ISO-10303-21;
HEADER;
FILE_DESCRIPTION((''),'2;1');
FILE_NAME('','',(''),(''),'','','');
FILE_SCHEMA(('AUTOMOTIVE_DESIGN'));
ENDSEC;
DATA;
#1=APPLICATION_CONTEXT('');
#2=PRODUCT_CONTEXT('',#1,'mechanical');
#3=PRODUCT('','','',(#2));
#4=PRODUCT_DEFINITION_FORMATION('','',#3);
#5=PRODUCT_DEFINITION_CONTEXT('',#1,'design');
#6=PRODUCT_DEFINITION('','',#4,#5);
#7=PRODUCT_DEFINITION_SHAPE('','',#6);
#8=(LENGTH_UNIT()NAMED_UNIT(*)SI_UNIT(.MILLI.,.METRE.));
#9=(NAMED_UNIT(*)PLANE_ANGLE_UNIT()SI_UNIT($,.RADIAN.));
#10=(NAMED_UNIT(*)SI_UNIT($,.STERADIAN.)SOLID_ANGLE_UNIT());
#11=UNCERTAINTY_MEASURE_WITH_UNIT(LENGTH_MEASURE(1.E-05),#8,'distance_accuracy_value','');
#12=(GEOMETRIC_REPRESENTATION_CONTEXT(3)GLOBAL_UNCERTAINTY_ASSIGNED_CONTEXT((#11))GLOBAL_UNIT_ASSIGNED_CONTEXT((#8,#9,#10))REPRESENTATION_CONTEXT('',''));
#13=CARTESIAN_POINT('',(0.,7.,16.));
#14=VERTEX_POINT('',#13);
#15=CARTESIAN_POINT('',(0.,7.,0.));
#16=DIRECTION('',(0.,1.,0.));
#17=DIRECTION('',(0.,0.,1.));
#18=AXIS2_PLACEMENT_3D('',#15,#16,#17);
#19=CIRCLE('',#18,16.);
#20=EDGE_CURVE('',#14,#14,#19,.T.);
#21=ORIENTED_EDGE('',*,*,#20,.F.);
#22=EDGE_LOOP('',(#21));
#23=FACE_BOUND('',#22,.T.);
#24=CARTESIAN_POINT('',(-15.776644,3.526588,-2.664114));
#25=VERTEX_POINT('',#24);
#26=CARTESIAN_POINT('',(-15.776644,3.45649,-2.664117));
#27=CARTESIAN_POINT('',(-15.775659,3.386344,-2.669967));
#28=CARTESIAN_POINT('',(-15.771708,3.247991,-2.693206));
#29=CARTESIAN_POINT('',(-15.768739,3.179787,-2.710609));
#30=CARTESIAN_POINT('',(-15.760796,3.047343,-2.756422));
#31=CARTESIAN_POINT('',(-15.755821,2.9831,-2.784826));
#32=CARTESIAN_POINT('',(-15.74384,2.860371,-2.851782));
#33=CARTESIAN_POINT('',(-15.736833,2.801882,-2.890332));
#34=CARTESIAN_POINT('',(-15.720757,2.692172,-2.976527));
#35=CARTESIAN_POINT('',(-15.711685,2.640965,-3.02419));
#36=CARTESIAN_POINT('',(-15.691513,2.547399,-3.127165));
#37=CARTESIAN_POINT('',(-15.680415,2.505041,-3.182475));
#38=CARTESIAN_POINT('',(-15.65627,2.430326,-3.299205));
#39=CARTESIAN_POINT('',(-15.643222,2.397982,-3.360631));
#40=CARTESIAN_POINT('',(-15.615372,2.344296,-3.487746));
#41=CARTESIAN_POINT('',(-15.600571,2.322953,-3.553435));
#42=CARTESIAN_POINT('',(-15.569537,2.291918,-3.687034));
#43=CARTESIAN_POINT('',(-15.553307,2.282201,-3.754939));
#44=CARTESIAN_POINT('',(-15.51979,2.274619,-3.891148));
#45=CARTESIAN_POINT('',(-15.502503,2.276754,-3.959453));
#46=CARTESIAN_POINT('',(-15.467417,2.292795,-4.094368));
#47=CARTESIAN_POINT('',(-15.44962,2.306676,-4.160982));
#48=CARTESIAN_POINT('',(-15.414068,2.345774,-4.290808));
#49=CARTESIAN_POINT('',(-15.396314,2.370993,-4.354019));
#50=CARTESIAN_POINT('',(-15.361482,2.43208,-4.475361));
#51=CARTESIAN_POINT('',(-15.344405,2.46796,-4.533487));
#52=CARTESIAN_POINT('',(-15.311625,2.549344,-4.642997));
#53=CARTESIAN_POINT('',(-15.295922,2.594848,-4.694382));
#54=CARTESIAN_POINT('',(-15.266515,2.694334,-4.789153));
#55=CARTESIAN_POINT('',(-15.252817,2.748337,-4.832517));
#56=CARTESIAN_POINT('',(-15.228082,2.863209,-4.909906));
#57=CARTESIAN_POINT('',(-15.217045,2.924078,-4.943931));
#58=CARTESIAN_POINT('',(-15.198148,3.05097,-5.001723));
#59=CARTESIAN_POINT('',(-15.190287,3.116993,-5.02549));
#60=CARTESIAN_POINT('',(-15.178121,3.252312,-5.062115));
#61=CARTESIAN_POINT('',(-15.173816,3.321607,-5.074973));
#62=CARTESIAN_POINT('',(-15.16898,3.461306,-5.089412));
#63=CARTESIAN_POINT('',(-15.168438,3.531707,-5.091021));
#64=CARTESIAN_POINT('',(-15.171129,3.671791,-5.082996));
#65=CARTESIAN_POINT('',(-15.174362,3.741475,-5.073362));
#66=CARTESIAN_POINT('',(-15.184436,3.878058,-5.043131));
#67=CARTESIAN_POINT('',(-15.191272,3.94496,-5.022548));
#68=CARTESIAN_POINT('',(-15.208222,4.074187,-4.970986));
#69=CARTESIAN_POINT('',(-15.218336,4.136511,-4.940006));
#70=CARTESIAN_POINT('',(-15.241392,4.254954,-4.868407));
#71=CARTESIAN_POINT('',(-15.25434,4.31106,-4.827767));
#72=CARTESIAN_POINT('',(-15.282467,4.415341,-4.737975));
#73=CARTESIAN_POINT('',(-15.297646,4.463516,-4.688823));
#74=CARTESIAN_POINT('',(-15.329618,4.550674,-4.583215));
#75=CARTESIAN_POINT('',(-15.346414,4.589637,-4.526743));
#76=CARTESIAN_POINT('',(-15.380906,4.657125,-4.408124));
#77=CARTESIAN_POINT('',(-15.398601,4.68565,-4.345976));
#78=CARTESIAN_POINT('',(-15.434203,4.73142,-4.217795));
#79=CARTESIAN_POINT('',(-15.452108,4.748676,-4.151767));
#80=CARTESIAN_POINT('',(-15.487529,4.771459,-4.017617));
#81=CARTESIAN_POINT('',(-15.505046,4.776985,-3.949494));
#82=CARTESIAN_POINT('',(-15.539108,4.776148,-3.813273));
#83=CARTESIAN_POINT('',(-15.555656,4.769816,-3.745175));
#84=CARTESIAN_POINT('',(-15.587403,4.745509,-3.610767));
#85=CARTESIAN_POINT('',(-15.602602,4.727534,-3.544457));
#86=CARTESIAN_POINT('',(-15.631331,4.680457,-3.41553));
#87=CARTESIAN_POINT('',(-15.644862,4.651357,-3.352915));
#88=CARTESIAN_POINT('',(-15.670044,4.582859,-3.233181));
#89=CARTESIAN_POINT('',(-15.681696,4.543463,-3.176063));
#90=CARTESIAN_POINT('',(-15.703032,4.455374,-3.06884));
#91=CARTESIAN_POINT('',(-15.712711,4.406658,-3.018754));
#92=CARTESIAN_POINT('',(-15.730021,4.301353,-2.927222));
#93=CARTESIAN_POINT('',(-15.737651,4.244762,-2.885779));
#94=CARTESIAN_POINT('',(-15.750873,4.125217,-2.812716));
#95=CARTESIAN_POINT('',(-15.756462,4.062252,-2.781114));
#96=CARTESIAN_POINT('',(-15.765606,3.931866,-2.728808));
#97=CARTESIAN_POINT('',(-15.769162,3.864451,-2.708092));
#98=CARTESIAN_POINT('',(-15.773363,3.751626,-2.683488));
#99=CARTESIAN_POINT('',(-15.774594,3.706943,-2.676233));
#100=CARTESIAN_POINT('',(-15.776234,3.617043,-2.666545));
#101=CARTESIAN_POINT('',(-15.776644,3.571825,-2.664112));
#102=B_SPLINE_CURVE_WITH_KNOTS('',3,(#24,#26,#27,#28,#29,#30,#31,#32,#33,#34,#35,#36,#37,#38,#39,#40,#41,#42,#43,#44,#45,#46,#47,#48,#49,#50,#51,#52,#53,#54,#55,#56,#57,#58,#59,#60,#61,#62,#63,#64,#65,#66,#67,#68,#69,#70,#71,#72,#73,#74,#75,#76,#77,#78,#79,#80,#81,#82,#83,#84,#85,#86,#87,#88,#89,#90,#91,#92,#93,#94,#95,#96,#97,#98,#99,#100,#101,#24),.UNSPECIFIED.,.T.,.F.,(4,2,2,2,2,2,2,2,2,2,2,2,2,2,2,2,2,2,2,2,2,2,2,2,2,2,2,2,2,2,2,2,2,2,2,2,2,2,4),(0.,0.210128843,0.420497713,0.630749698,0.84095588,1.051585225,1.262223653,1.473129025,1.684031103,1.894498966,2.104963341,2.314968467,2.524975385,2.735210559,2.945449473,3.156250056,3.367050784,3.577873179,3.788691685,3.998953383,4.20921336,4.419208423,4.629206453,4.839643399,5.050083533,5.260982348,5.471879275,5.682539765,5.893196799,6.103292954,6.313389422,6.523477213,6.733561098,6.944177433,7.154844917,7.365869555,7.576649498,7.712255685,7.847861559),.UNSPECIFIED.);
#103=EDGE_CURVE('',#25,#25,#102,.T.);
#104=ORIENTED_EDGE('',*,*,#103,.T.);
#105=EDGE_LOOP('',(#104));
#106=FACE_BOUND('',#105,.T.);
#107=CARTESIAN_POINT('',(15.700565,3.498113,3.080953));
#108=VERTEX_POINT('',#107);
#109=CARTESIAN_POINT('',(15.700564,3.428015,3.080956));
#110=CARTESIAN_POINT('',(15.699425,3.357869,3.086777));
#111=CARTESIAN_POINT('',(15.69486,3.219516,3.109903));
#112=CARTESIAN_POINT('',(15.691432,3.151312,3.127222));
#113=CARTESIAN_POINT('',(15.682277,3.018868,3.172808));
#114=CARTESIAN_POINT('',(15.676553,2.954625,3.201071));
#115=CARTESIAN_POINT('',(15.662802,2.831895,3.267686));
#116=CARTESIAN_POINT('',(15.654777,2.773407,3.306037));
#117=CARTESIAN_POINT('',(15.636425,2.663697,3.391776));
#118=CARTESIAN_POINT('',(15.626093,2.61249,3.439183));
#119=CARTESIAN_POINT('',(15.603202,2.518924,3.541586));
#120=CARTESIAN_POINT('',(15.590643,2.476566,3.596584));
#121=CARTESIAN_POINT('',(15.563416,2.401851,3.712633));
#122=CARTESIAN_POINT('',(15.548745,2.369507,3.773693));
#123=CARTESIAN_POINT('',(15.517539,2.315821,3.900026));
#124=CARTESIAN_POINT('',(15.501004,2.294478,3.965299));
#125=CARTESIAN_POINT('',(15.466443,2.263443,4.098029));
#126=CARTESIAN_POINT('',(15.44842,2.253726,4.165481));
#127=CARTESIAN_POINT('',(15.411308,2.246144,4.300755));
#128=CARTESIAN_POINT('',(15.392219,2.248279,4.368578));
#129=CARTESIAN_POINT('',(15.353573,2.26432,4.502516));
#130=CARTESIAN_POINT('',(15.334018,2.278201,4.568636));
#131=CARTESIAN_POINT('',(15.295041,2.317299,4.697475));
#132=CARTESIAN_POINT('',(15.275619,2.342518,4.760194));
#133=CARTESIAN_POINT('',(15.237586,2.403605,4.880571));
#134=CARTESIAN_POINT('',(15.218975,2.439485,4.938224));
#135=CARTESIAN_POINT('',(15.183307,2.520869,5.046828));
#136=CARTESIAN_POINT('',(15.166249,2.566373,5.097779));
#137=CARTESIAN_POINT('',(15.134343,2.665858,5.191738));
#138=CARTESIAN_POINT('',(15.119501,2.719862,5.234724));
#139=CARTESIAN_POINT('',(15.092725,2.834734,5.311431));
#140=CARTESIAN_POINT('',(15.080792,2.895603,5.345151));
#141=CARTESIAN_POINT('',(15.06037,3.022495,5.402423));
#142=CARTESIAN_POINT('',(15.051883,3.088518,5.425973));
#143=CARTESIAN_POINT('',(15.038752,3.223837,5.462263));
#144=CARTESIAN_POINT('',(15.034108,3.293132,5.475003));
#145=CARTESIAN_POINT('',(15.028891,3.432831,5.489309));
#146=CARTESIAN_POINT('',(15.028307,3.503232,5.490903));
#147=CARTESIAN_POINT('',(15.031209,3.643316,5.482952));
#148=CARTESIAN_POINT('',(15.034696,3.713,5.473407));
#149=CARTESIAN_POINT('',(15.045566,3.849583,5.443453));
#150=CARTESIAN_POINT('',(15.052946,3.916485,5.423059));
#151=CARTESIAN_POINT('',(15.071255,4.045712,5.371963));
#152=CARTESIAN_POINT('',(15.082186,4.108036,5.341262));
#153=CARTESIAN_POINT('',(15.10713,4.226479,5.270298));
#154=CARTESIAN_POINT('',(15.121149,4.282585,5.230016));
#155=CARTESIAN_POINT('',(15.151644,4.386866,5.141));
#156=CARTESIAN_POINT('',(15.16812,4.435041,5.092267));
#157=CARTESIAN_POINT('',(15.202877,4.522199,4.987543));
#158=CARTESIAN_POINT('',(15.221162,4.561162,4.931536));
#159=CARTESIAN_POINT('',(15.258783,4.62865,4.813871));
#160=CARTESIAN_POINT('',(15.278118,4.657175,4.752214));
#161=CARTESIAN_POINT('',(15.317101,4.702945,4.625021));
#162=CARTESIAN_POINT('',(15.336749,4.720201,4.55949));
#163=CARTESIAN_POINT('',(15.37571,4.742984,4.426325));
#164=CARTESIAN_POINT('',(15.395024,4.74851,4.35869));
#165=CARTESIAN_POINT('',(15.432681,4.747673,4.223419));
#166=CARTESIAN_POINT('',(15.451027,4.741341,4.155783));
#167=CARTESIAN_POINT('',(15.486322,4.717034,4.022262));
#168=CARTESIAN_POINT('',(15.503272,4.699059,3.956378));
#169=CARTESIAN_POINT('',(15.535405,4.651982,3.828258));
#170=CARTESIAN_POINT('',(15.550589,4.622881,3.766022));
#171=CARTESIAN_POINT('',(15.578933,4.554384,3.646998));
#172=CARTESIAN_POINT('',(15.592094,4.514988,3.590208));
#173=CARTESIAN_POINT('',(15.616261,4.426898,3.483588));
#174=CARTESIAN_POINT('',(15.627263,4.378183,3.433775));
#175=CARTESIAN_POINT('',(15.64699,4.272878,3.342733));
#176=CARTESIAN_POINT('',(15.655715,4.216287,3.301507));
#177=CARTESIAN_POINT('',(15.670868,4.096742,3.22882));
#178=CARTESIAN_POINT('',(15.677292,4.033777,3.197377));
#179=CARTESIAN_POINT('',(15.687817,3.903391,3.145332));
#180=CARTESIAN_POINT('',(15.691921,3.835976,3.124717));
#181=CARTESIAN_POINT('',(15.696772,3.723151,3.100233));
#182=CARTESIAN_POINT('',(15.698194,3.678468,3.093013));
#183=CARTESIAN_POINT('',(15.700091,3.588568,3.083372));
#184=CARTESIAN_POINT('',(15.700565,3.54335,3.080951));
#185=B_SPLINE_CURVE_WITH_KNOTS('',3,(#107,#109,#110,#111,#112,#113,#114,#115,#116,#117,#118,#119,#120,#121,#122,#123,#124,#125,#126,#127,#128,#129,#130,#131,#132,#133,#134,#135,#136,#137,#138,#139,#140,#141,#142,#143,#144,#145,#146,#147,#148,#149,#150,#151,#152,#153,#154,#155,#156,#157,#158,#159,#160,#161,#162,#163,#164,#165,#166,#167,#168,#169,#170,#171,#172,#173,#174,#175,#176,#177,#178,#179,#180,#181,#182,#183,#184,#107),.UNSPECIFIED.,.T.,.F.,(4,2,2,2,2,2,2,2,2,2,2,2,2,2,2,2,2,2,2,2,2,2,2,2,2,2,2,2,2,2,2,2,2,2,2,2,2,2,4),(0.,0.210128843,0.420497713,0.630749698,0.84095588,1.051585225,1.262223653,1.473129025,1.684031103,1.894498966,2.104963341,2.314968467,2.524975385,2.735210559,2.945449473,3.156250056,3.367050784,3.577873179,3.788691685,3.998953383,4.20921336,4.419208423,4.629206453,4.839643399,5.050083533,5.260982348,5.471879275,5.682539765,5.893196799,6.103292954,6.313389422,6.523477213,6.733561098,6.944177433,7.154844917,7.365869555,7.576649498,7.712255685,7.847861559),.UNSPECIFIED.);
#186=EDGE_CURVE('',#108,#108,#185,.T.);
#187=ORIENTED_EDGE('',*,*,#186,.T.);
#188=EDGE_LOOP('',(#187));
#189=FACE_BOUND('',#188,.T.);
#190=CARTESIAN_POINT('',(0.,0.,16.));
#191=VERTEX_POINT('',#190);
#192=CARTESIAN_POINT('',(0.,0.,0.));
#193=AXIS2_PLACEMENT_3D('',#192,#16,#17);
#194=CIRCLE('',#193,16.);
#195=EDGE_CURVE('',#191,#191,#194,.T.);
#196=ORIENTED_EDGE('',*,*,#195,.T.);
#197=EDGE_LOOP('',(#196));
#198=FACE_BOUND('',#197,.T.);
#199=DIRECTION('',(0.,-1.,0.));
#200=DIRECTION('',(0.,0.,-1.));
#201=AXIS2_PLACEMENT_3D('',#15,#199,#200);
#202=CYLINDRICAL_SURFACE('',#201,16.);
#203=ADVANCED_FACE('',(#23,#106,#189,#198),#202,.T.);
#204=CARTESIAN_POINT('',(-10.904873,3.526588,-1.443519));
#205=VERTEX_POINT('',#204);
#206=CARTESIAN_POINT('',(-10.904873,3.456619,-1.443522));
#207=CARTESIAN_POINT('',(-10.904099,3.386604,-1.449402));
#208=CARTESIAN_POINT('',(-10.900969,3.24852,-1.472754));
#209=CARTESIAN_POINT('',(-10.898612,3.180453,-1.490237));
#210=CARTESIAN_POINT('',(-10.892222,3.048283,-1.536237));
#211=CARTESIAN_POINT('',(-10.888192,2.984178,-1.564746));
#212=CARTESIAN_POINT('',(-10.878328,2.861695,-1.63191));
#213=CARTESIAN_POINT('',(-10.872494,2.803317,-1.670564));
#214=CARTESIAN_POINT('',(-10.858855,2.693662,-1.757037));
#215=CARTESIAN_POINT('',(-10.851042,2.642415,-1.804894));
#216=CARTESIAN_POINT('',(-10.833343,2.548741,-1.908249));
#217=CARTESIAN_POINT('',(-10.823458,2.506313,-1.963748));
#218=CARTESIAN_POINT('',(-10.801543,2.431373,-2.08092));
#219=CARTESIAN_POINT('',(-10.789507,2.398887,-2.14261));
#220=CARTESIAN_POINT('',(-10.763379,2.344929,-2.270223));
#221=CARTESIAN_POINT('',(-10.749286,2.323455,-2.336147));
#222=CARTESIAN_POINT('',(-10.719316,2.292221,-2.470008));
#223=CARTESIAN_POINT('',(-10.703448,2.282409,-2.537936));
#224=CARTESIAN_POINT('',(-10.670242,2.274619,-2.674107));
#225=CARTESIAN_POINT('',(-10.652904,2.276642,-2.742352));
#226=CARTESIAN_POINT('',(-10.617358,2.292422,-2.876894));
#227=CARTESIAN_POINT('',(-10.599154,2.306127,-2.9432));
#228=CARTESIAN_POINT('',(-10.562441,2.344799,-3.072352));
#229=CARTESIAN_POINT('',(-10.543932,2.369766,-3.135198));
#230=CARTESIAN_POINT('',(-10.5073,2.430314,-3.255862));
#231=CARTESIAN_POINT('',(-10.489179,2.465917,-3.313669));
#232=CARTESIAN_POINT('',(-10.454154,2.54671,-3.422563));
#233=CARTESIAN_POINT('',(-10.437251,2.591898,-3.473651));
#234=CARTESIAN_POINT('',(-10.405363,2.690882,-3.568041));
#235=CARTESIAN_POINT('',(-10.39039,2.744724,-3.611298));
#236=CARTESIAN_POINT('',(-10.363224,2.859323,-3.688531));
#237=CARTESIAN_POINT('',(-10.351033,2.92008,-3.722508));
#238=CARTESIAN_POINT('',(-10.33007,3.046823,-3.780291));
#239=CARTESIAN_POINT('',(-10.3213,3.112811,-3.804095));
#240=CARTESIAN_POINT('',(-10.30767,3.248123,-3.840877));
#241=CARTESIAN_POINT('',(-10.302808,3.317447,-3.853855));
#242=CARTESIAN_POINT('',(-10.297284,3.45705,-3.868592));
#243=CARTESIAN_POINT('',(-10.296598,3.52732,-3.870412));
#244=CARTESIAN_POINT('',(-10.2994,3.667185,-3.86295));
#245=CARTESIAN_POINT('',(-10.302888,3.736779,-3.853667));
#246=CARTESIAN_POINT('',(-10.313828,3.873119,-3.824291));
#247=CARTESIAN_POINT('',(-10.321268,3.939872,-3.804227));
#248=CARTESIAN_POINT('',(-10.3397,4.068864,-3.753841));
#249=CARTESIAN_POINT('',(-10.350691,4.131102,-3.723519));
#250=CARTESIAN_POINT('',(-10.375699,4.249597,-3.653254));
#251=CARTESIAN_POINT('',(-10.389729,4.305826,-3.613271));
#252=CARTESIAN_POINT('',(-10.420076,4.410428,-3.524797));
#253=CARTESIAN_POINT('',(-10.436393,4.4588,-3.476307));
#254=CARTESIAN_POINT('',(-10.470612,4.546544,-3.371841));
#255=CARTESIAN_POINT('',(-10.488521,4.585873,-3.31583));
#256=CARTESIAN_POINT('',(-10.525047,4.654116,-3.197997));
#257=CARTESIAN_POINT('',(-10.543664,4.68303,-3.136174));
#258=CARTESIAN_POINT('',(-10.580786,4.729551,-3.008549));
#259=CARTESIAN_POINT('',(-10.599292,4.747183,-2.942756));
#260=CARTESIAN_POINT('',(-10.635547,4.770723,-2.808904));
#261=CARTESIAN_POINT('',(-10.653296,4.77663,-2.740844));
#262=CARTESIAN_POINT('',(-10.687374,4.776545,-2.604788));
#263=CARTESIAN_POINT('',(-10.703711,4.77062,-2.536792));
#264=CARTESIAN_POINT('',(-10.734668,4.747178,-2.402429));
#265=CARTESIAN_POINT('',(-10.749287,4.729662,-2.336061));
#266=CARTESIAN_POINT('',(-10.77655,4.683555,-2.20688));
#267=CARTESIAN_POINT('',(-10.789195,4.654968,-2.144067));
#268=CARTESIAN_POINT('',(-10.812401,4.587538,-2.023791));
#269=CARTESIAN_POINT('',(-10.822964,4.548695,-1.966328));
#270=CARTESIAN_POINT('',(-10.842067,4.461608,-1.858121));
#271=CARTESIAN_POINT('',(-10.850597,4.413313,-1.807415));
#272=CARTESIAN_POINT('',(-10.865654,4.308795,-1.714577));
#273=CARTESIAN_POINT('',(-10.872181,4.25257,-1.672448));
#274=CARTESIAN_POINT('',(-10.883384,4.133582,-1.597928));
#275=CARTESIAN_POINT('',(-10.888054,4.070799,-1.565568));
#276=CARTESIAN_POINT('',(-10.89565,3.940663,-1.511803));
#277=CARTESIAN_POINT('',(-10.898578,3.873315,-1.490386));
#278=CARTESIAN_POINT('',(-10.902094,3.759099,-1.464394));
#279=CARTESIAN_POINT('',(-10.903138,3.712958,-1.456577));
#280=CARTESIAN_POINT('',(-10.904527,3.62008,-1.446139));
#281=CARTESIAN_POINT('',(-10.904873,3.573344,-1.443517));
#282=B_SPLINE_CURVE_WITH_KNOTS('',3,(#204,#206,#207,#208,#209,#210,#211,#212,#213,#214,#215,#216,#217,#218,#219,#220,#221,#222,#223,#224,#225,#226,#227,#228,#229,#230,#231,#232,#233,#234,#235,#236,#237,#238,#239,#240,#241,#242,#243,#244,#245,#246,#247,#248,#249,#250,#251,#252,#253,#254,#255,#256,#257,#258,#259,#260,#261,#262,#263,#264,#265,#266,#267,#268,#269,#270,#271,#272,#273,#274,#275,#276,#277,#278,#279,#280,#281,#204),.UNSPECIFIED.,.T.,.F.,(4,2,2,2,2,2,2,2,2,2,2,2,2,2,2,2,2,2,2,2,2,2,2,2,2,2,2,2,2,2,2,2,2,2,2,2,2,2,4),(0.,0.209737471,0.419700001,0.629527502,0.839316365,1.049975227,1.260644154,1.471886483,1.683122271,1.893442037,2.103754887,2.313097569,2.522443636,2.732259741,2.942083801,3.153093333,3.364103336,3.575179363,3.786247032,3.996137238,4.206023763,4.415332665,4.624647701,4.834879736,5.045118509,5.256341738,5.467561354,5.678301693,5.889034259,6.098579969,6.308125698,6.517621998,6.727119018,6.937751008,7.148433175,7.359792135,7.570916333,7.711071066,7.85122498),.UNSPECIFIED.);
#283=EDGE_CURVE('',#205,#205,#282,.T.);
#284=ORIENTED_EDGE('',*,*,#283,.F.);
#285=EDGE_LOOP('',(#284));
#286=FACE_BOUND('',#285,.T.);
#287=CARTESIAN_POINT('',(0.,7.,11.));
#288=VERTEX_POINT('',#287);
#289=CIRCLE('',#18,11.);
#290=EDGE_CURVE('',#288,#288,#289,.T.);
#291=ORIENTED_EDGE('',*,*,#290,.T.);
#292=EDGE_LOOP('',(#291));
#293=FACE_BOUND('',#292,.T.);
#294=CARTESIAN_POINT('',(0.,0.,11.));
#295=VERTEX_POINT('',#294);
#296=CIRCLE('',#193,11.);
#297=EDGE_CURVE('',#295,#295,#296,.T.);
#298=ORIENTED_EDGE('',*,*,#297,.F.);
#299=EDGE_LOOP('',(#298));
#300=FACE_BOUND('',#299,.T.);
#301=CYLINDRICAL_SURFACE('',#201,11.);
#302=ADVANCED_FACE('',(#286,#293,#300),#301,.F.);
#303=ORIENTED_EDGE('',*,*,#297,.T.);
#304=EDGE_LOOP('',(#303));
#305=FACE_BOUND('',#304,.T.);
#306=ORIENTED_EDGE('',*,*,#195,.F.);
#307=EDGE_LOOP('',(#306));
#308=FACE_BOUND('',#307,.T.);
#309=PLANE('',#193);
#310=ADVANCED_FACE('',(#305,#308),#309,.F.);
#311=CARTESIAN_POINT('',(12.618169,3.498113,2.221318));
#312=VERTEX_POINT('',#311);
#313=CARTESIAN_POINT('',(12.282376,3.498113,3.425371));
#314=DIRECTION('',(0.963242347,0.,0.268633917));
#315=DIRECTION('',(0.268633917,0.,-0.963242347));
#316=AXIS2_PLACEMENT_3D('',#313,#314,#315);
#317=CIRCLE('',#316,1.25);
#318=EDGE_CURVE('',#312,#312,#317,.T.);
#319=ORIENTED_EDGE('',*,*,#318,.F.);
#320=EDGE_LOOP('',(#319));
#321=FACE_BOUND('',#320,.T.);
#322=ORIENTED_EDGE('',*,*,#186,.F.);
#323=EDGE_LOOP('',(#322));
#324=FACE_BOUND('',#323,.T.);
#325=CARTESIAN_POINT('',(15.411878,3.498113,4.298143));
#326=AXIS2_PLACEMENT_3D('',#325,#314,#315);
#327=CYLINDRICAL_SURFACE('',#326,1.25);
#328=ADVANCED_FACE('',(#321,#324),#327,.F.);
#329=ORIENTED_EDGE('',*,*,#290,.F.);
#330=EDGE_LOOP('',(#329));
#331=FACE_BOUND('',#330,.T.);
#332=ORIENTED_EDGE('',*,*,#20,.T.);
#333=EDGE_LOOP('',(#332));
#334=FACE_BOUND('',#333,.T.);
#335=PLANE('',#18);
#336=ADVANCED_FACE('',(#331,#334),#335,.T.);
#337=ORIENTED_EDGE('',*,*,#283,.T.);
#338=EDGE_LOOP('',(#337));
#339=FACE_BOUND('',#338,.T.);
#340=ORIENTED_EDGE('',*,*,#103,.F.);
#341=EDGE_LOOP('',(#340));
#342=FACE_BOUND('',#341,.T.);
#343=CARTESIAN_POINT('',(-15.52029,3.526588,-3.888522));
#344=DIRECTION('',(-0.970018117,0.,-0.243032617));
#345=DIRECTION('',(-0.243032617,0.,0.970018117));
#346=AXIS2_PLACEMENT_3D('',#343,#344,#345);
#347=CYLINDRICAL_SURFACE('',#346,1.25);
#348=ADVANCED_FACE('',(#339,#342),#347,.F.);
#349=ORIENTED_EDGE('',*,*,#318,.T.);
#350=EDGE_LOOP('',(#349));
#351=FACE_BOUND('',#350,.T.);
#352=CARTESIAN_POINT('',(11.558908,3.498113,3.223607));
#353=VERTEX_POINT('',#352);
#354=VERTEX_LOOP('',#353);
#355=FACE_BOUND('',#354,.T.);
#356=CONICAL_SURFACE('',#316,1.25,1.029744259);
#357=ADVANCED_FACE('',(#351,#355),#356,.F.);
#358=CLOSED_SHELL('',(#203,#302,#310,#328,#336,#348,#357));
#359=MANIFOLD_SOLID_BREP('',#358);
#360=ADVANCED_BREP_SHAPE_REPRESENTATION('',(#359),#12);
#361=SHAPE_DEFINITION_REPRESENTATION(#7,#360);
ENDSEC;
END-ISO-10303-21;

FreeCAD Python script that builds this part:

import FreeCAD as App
import Part
import Sketcher

V = App.Vector
Q = App.Units.Quantity

doc = App.newDocument("Part")
params = doc.addObject("Spreadsheet::Sheet", "Params")
for row, (alias, value) in enumerate([
    ("sketch1_diameter", "32 mm"),
    ("sketch1_diameter2", "22 mm"),
    ("pad1_length", "7 mm"),
    ("sketch2_diameter", "2.5 mm"),
    ("sketch3_diameter", "2.5 mm"),
    ("hole_diameter", "2.5 mm"),
    ("hole_depth", "3.248924 mm"),
], start=1):
    params.set(f"A{row}", alias)
    params.set(f"B{row}", "=" + value)
    params.setAlias(f"B{row}", alias)

body = doc.addObject("PartDesign::Body", "Body")

sketch1 = doc.addObject("Sketcher::SketchObject", "Sketch")
body.addObject(sketch1)
sketch1.AttachmentSupport = (doc.XZ_Plane, [""])
sketch1.MapMode = "FlatFace"
sketch1.addGeometry(Part.Circle(V(0, 0, 0), V(0, 0, 1), 16), False)
sketch1.addGeometry(Part.Circle(V(0, 0, 0), V(0, 0, 1), 11), False)
sketch1.addConstraint(Sketcher.Constraint("Coincident", 0, 3, -1, 1))
sketch1.addConstraint(Sketcher.Constraint("Coincident", 1, 3, -1, 1))
sketch1.addConstraint(Sketcher.Constraint("Diameter", 0, Q("32 mm")))
sketch1.addConstraint(Sketcher.Constraint("Diameter", 1, Q("22 mm")))
sketch1.setExpression("Constraints[2]", "Params.sketch1_diameter")
sketch1.setExpression("Constraints[3]", "Params.sketch1_diameter2")
pad1 = doc.addObject("PartDesign::Pad", "Pad")
body.addObject(pad1)
pad1.Profile = sketch1
pad1.setExpression("Length", "Params.pad1_length")
pad1.Reversed = True

sketch2 = doc.addObject("Sketcher::SketchObject", "Sketch001")
body.addObject(sketch2)
sketch2.Placement = App.Placement(V(-15.52029, 3.526588, -3.888522), App.Rotation(V(0.243032617, 0, -0.970018117), V(0, -1, 0), V(-0.970018117, 0, -0.243032617), "ZXY"))
sketch2.addGeometry(Part.Circle(V(0, 0, 0), V(0, 0, 1), 1.2), False)
sketch2.addConstraint(Sketcher.Constraint("Coincident", 0, 3, -1, 1))
sketch2.addConstraint(Sketcher.Constraint("Diameter", 0, Q("2.5 mm")))
sketch2.setExpression("Constraints[1]", "Params.sketch2_diameter")
pocket1 = doc.addObject("PartDesign::Pocket", "Pocket")
body.addObject(pocket1)
pocket1.Profile = sketch2
pocket1.Type = "UpToFirst"

sketch3 = doc.addObject("Sketcher::SketchObject", "Sketch002")
body.addObject(sketch3)
sketch3.Placement = App.Placement(V(15.411878, 0, 4.298143), App.Rotation(V(-0.268633917, 0, 0.963242347), V(0, -1, 0), V(0.963242347, 0, 0.268633917), "ZXY"))
sketch3.addGeometry(Part.Circle(V(0, -3.5, 0), V(0, 0, 1), 1.2), False)
sketch3.addConstraint(Sketcher.Constraint("PointOnObject", 0, 3, -2))
sketch3.addConstraint(Sketcher.Constraint("Diameter", 0, Q("2.5 mm")))
sketch3.addConstraint(Sketcher.Constraint("DistanceY", 0, 3, -1, 1, Q("3.498113 mm")))
sketch3.setExpression("Constraints[1]", "Params.sketch3_diameter")
doc.recompute()
hole = doc.addObject("PartDesign::Hole", "Hole")
body.addObject(hole)
hole.Profile = sketch3
hole.ThreadType = "None"
hole.setExpression("Diameter", "Params.hole_diameter")
hole.DepthType = "Dimension"
hole.setExpression("Depth", "Params.hole_depth")
hole.DrillPoint = "Angled"
hole.DrillPointAngle = 118

doc.recompute()
